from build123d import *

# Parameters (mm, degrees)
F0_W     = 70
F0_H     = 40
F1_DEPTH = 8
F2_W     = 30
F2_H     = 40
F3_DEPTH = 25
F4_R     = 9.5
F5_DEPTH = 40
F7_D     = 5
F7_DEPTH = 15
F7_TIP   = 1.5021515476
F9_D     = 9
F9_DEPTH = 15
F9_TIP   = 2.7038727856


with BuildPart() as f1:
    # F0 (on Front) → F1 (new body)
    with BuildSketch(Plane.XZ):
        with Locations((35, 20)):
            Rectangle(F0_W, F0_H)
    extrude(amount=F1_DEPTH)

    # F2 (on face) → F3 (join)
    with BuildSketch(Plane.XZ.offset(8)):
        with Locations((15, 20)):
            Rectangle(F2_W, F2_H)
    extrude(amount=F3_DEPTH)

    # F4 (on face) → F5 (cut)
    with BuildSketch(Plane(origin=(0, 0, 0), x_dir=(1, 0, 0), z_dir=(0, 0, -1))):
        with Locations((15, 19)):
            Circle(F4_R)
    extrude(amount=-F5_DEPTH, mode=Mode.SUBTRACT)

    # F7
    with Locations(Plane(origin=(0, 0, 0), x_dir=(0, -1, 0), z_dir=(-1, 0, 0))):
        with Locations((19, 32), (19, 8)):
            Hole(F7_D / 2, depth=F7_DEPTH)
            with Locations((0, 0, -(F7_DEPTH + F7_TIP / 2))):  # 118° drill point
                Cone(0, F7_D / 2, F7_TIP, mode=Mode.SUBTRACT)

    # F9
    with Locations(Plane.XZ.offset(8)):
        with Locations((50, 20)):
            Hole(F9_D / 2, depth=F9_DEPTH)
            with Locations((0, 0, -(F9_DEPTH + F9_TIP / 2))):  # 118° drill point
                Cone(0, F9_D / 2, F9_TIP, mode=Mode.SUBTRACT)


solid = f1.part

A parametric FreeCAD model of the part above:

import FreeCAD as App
import Part
import Sketcher
Q = App.Units.Quantity


def add_polygon(sketch, points):
    """Adds a closed chain of lines whose ends are joined by coincident constraints."""
    first, n = sketch.GeometryCount, len(points)
    for a, b in zip(points, points[1:] + points[:1]):
        sketch.addGeometry(Part.LineSegment(App.Vector(*a, 0), App.Vector(*b, 0)), False)
    for i in range(n):
        sketch.addConstraint(Sketcher.Constraint("Coincident", first + i, 2, first + (i + 1) % n, 1))

doc = App.newDocument("Part")
params = doc.addObject("Spreadsheet::Sheet", "Params")
for row, (alias, value) in enumerate([
    ("sketch1_width", "70 mm"),
    ("sketch1_height", "40 mm"),
    ("pad1_length", "8 mm"),
    ("sketch2_width", "30 mm"),
    ("sketch2_height", "40 mm"),
    ("pad2_length", "25 mm"),
    ("sketch3_diameter", "19 mm"),
    ("pocket1_length", "40 mm"),
    ("sketch4_diameter", "5 mm"),
    ("hole_diameter", "5 mm"),
    ("hole_depth", "15 mm"),
    ("sketch5_diameter", "9 mm"),
    ("hole2_diameter", "9 mm"),
    ("hole2_depth", "15 mm"),
], start=1):
    params.set(f"A{row}", alias)
    params.set(f"B{row}", "=" + value)
    params.setAlias(f"B{row}", alias)

body = doc.addObject("PartDesign::Body", "Body")

sketch1 = body.newObject("Sketcher::SketchObject", "Sketch")
sketch1.AttachmentSupport = (doc.getObject("XZ_Plane"), [""])
sketch1.MapMode = "FlatFace"
add_polygon(sketch1, [(0, 40), (0, 0), (70, 0), (70, 40)])
sketch1.addConstraint([
    Sketcher.Constraint("Vertical", 0),
    Sketcher.Constraint("Horizontal", 1),
    Sketcher.Constraint("Vertical", 2),
    Sketcher.Constraint("Horizontal", 3),
    Sketcher.Constraint("Coincident", 0, 2, -1, 1),
    Sketcher.Constraint("DistanceX", 1, 1, 1, 2, Q("70 mm")),
    Sketcher.Constraint("DistanceY", 0, 2, 0, 1, Q("40 mm")),
])
sketch1.setExpression("Constraints[9]", "Params.sketch1_width")
sketch1.setExpression("Constraints[10]", "Params.sketch1_height")
pad1 = body.newObject("PartDesign::Pad", "Pad")
pad1.Profile = sketch1
pad1.setExpression("Length", "Params.pad1_length")

sketch2 = body.newObject("Sketcher::SketchObject", "Sketch001")
sketch2.AttachmentSupport = (doc.getObject("XZ_Plane"), [""])
sketch2.MapMode = "FlatFace"
sketch2.AttachmentOffset = App.Placement(App.Vector(0, 0, 8), App.Rotation())
add_polygon(sketch2, [(0, 40), (0, 0), (30, 0), (30, 40)])
sketch2.addConstraint([
    Sketcher.Constraint("Vertical", 0),
    Sketcher.Constraint("Horizontal", 1),
    Sketcher.Constraint("Vertical", 2),
    Sketcher.Constraint("Horizontal", 3),
    Sketcher.Constraint("Coincident", 0, 2, -1, 1),
    Sketcher.Constraint("DistanceX", 1, 1, 1, 2, Q("30 mm")),
    Sketcher.Constraint("DistanceY", 0, 2, 0, 1, Q("40 mm")),
])
sketch2.setExpression("Constraints[9]", "Params.sketch2_width")
sketch2.setExpression("Constraints[10]", "Params.sketch2_height")
pad2 = body.newObject("PartDesign::Pad", "Pad001")
pad2.Profile = sketch2
pad2.setExpression("Length", "Params.pad2_length")

sketch3 = body.newObject("Sketcher::SketchObject", "Sketch002")
sketch3.AttachmentSupport = (doc.getObject("XY_Plane"), [""])
sketch3.MapMode = "FlatFace"
sketch3.addGeometry(Part.Circle(App.Vector(15, -19, 0), App.Vector(0, 0, 1), 10), False)
sketch3.addConstraint([
    Sketcher.Constraint("Diameter", 0, Q("19 mm")),
    Sketcher.Constraint("DistanceX", -1, 1, 0, 3, Q("15 mm")),
    Sketcher.Constraint("DistanceY", 0, 3, -1, 1, Q("19 mm")),
])
sketch3.setExpression("Constraints[0]", "Params.sketch3_diameter")
pocket1 = body.newObject("PartDesign::Pocket", "Pocket")
pocket1.Profile = sketch3
pocket1.setExpression("Length", "Params.pocket1_length")
pocket1.Reversed = True

sketch4 = body.newObject("Sketcher::SketchObject", "Sketch003")
sketch4.AttachmentSupport = (doc.getObject("YZ_Plane"), [""])
sketch4.MapMode = "FlatFace"
sketch4.addGeometry([
    Part.Circle(App.Vector(-19, 32, 0), App.Vector(0, 0, 1), 2.5),
    Part.Circle(App.Vector(-19, 8, 0), App.Vector(0, 0, 1), 2.5),
], False)
sketch4.addConstraint([
    Sketcher.Constraint("Equal", 0, 1),
    Sketcher.Constraint("Vertical", 0, 3, 1, 3),
    Sketcher.Constraint("Diameter", 0, Q("5 mm")),
    Sketcher.Constraint("DistanceX", 0, 3, -1, 1, Q("19 mm")),
    Sketcher.Constraint("DistanceY", -1, 1, 0, 3, Q("32 mm")),
    Sketcher.Constraint("DistanceY", -1, 1, 1, 3, Q("8 mm")),
])
sketch4.setExpression("Constraints[2]", "Params.sketch4_diameter")
doc.recompute()
hole = body.newObject("PartDesign::Hole", "Hole")
hole.Profile = sketch4
hole.ThreadType = "None"
hole.setExpression("Diameter", "Params.hole_diameter")
hole.DepthType = "Dimension"
hole.setExpression("Depth", "Params.hole_depth")
hole.DrillPoint = "Angled"
hole.DrillPointAngle = 118
hole.Reversed = True

sketch5 = body.newObject("Sketcher::SketchObject", "Sketch004")
sketch5.AttachmentSupport = (doc.getObject("XZ_Plane"), [""])
sketch5.MapMode = "FlatFace"
sketch5.AttachmentOffset = App.Placement(App.Vector(0, 0, 8), App.Rotation())
sketch5.addGeometry(Part.Circle(App.Vector(50, 20, 0), App.Vector(0, 0, 1), 4.5), False)
sketch5.addConstraint([
    Sketcher.Constraint("Diameter", 0, Q("9 mm")),
    Sketcher.Constraint("DistanceX", -1, 1, 0, 3, Q("50 mm")),
    Sketcher.Constraint("DistanceY", -1, 1, 0, 3, Q("20 mm")),
])
sketch5.setExpression("Constraints[0]", "Params.sketch5_diameter")
doc.recompute()
hole2 = body.newObject("PartDesign::Hole", "Hole001")
hole2.Profile = sketch5
hole2.ThreadType = "None"
hole2.setExpression("Diameter", "Params.hole2_diameter")
hole2.DepthType = "Dimension"
hole2.setExpression("Depth", "Params.hole2_depth")
hole2.DrillPoint = "Angled"
hole2.DrillPointAngle = 118

doc.recompute()
